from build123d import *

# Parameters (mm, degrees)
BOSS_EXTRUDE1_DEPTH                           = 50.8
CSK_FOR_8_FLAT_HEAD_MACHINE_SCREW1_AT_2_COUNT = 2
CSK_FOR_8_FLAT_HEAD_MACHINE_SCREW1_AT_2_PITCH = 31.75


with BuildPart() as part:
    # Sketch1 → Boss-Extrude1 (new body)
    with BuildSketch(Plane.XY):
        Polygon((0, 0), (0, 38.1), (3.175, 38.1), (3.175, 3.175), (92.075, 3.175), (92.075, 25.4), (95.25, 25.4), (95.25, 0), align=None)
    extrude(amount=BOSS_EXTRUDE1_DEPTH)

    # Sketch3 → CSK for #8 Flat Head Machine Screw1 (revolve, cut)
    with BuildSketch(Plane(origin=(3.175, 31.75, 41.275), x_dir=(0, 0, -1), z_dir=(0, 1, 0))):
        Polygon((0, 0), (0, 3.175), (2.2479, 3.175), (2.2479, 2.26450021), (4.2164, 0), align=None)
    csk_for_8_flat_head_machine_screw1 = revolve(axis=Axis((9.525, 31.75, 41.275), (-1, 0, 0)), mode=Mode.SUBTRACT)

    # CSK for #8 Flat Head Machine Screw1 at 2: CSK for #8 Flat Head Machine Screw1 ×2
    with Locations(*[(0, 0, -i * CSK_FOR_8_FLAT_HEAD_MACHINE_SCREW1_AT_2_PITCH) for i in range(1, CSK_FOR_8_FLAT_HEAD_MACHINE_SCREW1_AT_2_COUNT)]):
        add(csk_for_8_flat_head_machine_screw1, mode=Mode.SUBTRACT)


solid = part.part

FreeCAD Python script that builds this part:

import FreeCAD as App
import Part
import Sketcher

V = App.Vector
Q = App.Units.Quantity

doc = App.newDocument("Part")
params = doc.addObject("Spreadsheet::Sheet", "Params")
for row, (alias, value) in enumerate([
    ("sketch1_height", "1 in"),
    ("sketch1_width", "3.5 in"),
    ("sketch1_height2", "1.5 in"),
    ("sketch1_width2", "3.75 in"),
    ("sketch1_height3", "0.875 in"),
    ("pad1_length", "2 in"),
    ("sketch2_width", "0.125 in"),
    ("sketch2_height", "0.166 in"),
    ("groove_angle", "360 deg"),
    ("linearpattern_pitch", "1.25 in"),
], start=1):
    params.set(f"A{row}", alias)
    params.set(f"B{row}", "=" + value)
    params.setAlias(f"B{row}", alias)

body = doc.addObject("PartDesign::Body", "Body")

sketch1 = body.newObject("Sketcher::SketchObject", "Sketch")
sketch1.AttachmentSupport = (doc.getObject("XY_Plane"), [""])
sketch1.MapMode = "FlatFace"
sketch1.addGeometry(Part.LineSegment(V(0, 38.1, 0), V(0, 0, 0)), False)
sketch1.addGeometry(Part.LineSegment(V(0, 0, 0), V(95.2, 0, 0)), False)
sketch1.addGeometry(Part.LineSegment(V(95.2, 0, 0), V(95.2, 25.4, 0)), False)
sketch1.addGeometry(Part.LineSegment(V(95.2, 25.4, 0), V(92.1, 25.4, 0)), False)
sketch1.addGeometry(Part.LineSegment(V(92.1, 25.4, 0), V(92.1, 3.2, 0)), False)
sketch1.addGeometry(Part.LineSegment(V(92.1, 3.2, 0), V(3.2, 3.2, 0)), False)
sketch1.addGeometry(Part.LineSegment(V(3.2, 3.2, 0), V(3.2, 38.1, 0)), False)
sketch1.addGeometry(Part.LineSegment(V(3.2, 38.1, 0), V(0, 38.1, 0)), False)
sketch1.addConstraint(Sketcher.Constraint("Coincident", 0, 2, 1, 1))
sketch1.addConstraint(Sketcher.Constraint("Coincident", 1, 2, 2, 1))
sketch1.addConstraint(Sketcher.Constraint("Coincident", 2, 2, 3, 1))
sketch1.addConstraint(Sketcher.Constraint("Coincident", 3, 2, 4, 1))
sketch1.addConstraint(Sketcher.Constraint("Coincident", 4, 2, 5, 1))
sketch1.addConstraint(Sketcher.Constraint("Coincident", 5, 2, 6, 1))
sketch1.addConstraint(Sketcher.Constraint("Coincident", 6, 2, 7, 1))
sketch1.addConstraint(Sketcher.Constraint("Coincident", 7, 2, 0, 1))
sketch1.addConstraint(Sketcher.Constraint("Vertical", 0))
sketch1.addConstraint(Sketcher.Constraint("Horizontal", 1))
sketch1.addConstraint(Sketcher.Constraint("Vertical", 2))
sketch1.addConstraint(Sketcher.Constraint("Horizontal", 3))
sketch1.addConstraint(Sketcher.Constraint("Vertical", 4))
sketch1.addConstraint(Sketcher.Constraint("Horizontal", 5))
sketch1.addConstraint(Sketcher.Constraint("Vertical", 6))
sketch1.addConstraint(Sketcher.Constraint("Horizontal", 7))
sketch1.addConstraint(Sketcher.Constraint("Coincident", 0, 2, -1, 1))
sketch1.addConstraint(Sketcher.Constraint("Equal", 3, 7))
sketch1.addConstraint(Sketcher.Constraint("DistanceY", 2, 1, 2, 2, Q("1 in")))
sketch1.addConstraint(Sketcher.Constraint("DistanceX", 5, 2, 5, 1, Q("3.5 in")))
sketch1.addConstraint(Sketcher.Constraint("DistanceY", 0, 2, 0, 1, Q("1.5 in")))
sketch1.addConstraint(Sketcher.Constraint("DistanceX", 1, 1, 1, 2, Q("3.75 in")))
sketch1.addConstraint(Sketcher.Constraint("DistanceY", 4, 2, 4, 1, Q("0.875 in")))
sketch1.setExpression("Constraints[18]", "Params.sketch1_height")
sketch1.setExpression("Constraints[19]", "Params.sketch1_width")
sketch1.setExpression("Constraints[20]", "Params.sketch1_height2")
sketch1.setExpression("Constraints[21]", "Params.sketch1_width2")
sketch1.setExpression("Constraints[22]", "Params.sketch1_height3")
pad1 = body.newObject("PartDesign::Pad", "Pad")
pad1.Profile = sketch1
pad1.setExpression("Length", "Params.pad1_length")

sketch2 = body.newObject("Sketcher::SketchObject", "Sketch001")
sketch2.AttachmentSupport = (doc.getObject("XZ_Plane"), [""])
sketch2.MapMode = "FlatFace"
sketch2.AttachmentOffset = App.Placement(V(0, 0, -1.25 * 25.4), App.Rotation())
sketch2.addGeometry(Part.LineSegment(V(0, 41.3, 0), V(3.2, 41.3, 0)), False)
sketch2.addGeometry(Part.LineSegment(V(3.2, 41.3, 0), V(3.2, 37.1, 0)), False)
sketch2.addGeometry(Part.LineSegment(V(3.2, 37.1, 0), V(0.9, 39, 0)), False)
sketch2.addGeometry(Part.LineSegment(V(0.9, 39, 0), V(0, 39, 0)), False)
sketch2.addGeometry(Part.LineSegment(V(0, 39, 0), V(0, 41.3, 0)), False)
sketch2.addGeometry(Part.LineSegment(V(3.2, 41.3, 0), V(0, 41.3, 0)), True)
sketch2.addConstraint(Sketcher.Constraint("Coincident", 0, 2, 1, 1))
sketch2.addConstraint(Sketcher.Constraint("Coincident", 1, 2, 2, 1))
sketch2.addConstraint(Sketcher.Constraint("Coincident", 2, 2, 3, 1))
sketch2.addConstraint(Sketcher.Constraint("Coincident", 3, 2, 4, 1))
sketch2.addConstraint(Sketcher.Constraint("Coincident", 4, 2, 0, 1))
sketch2.addConstraint(Sketcher.Constraint("Horizontal", 0))
sketch2.addConstraint(Sketcher.Constraint("Vertical", 1))
sketch2.addConstraint(Sketcher.Constraint("Horizontal", 3))
sketch2.addConstraint(Sketcher.Constraint("Vertical", 4))
sketch2.addConstraint(Sketcher.Constraint("Horizontal", 5))
sketch2.addConstraint(Sketcher.Constraint("Coincident", 5, 1, 0, 2))
sketch2.addConstraint(Sketcher.Constraint("PointOnObject", 3, 2, -2))
sketch2.addConstraint(Sketcher.Constraint("PointOnObject", 5, 2, -2))
sketch2.addConstraint(Sketcher.Constraint("Angle", 2, Q("139 deg")))
sketch2.addConstraint(Sketcher.Constraint("DistanceX", 0, 1, 0, 2, Q("0.125 in")))
sketch2.addConstraint(Sketcher.Constraint("DistanceY", 1, 2, 1, 1, Q("0.166 in")))
sketch2.addConstraint(Sketcher.Constraint("DistanceY", 4, 1, 4, 2, Q("0.0885 in")))
sketch2.addConstraint(Sketcher.Constraint("DistanceY", -1, 1, 0, 2, Q("1.625 in")))
sketch2.setExpression("Constraints[14]", "Params.sketch2_width")
sketch2.setExpression("Constraints[15]", "Params.sketch2_height")
groove = body.newObject("PartDesign::Groove", "Groove")
groove.Profile = sketch2
groove.ReferenceAxis = (sketch2, ["Axis0"])
groove.setExpression("Angle", "Params.groove_angle")
doc.recompute()

linearpattern = body.newObject("PartDesign::LinearPattern", "LinearPattern")
linearpattern.Originals = [groove]
linearpattern.Direction = (doc.getObject("Z_Axis"), [""])
linearpattern.Mode = "offset"
linearpattern.setExpression("Offset", "Params.linearpattern_pitch")
linearpattern.Occurrences = 2
linearpattern.Reversed = True
body.Tip = linearpattern

doc.recompute()
